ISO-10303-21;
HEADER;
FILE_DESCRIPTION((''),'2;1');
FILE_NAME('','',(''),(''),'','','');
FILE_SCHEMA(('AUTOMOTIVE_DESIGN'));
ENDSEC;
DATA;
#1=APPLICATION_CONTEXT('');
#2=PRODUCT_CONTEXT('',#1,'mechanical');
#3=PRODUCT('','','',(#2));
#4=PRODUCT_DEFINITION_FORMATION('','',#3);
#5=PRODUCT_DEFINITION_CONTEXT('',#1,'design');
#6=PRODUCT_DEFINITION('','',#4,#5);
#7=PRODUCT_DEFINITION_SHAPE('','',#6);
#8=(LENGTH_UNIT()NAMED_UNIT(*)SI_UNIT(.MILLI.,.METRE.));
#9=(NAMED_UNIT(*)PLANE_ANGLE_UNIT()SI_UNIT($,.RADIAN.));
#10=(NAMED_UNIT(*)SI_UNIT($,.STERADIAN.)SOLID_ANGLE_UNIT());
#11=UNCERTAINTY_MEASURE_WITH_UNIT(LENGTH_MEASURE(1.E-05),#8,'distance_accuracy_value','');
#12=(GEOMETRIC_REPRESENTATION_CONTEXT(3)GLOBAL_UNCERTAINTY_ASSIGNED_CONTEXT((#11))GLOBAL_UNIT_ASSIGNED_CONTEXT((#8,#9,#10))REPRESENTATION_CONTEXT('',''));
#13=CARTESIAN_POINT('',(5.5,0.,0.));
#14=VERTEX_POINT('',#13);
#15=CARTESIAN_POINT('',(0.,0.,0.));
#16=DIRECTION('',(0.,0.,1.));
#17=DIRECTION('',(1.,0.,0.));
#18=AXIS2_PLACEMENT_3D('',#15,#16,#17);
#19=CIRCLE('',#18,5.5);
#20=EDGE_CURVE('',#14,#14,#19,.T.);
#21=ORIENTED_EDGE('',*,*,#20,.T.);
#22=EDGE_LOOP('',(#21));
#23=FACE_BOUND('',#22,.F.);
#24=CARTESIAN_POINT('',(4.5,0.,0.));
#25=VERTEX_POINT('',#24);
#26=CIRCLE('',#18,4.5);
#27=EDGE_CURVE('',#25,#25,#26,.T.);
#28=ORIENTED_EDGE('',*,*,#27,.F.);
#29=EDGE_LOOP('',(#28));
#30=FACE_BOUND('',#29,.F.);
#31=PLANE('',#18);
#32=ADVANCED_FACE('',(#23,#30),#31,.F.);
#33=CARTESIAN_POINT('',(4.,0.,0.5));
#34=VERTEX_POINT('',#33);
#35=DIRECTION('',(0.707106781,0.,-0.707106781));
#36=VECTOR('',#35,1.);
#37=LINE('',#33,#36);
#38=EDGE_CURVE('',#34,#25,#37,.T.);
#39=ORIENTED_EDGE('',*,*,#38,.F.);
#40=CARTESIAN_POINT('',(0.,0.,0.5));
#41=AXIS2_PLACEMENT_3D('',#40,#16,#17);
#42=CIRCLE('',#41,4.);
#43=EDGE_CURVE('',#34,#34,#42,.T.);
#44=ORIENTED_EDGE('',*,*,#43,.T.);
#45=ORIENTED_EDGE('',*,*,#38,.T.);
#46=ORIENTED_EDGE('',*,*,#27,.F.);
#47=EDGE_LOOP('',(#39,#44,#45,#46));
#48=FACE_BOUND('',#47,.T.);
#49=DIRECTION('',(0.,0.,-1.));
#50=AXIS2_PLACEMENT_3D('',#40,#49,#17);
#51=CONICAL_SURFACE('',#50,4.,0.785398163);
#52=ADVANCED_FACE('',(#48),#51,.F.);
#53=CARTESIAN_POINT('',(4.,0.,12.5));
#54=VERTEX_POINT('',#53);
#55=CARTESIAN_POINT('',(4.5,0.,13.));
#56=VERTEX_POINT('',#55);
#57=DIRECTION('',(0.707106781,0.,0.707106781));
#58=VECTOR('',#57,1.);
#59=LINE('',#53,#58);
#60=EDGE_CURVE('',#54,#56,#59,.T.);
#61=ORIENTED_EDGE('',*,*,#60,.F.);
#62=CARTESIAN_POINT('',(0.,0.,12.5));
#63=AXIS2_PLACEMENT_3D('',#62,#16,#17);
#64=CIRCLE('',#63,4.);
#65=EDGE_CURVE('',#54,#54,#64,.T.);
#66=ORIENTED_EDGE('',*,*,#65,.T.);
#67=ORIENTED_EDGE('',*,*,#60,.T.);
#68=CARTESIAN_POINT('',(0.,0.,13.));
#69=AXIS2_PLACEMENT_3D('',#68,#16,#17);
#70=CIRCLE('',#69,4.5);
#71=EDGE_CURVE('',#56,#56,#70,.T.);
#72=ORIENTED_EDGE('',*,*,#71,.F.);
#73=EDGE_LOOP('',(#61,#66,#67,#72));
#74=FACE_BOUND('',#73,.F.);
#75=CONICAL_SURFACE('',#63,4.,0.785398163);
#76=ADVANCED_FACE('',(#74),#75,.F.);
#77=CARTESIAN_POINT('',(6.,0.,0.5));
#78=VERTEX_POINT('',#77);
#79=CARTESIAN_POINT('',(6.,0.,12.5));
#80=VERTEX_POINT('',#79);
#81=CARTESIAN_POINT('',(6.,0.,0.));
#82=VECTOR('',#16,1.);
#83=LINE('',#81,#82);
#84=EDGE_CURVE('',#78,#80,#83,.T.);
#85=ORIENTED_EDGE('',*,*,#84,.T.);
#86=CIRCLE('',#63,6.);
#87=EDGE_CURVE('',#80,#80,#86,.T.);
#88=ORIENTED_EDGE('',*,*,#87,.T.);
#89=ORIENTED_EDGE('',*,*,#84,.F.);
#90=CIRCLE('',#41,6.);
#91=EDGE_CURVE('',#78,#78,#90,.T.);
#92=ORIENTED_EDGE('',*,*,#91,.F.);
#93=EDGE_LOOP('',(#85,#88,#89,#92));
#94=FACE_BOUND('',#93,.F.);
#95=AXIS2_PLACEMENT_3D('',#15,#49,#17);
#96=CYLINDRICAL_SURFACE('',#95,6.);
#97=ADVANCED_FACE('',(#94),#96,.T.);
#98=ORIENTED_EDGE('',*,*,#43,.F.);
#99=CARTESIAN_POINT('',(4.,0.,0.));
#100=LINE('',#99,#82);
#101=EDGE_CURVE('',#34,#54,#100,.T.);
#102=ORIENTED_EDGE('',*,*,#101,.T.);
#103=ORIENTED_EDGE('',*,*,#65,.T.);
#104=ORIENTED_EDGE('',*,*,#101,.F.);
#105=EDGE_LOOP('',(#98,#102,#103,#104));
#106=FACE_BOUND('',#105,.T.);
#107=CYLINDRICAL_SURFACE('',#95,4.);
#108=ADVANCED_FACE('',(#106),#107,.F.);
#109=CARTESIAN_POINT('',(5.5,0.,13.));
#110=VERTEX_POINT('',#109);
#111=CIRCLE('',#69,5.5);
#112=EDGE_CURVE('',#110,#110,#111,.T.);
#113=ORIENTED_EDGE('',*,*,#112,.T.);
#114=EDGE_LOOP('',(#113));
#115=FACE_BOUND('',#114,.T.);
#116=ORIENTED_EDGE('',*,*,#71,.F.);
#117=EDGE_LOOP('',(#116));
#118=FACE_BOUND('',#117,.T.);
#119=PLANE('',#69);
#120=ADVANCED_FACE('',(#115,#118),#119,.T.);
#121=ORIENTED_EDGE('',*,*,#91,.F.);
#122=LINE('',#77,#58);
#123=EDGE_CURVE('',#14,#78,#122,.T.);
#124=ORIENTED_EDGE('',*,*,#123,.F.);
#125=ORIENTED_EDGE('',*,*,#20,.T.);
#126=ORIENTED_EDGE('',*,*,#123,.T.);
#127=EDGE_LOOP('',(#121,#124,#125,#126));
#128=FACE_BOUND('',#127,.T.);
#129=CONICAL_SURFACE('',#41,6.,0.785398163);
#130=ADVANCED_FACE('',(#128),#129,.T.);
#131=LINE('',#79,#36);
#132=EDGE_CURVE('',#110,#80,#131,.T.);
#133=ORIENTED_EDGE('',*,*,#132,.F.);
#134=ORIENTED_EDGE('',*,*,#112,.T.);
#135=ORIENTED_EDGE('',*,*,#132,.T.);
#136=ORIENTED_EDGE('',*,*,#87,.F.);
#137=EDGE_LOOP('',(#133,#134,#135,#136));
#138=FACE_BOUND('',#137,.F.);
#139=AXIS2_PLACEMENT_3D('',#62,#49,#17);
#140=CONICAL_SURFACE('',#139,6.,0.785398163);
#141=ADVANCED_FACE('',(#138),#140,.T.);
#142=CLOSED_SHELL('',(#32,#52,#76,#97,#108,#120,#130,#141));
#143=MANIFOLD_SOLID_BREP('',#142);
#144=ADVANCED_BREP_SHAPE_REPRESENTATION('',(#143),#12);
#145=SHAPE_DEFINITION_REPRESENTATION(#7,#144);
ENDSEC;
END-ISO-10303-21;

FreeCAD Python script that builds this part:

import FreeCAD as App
import Part
import Sketcher

V = App.Vector


def edges_at(feature, points):
    """Names of the edges that pass closest to the given points."""
    edges = feature.Shape.Edges
    near = lambda p: min(range(len(edges)), key=lambda i: edges[i].distToShape(Part.Vertex(*p))[0])
    return sorted({f"Edge{near(p) + 1}" for p in points})

doc = App.newDocument("Part")
body = doc.addObject("PartDesign::Body", "Body")

# Sketch on XY plane
sketch1 = body.newObject("Sketcher::SketchObject", "Sketch")
sketch1.AttachmentSupport = (doc.getObject("XY_Plane"), [""])
sketch1.MapMode = "FlatFace"
sketch1.addGeometry([
    Part.Circle(V(0, 0, 0), V(0, 0, 1), 6),
    Part.Circle(V(0, 0, 0), V(0, 0, 1), 4),
], False)
sketch1.addConstraint([
    Sketcher.Constraint("Coincident", 0, 3, -1, 1),
    Sketcher.Constraint("Coincident", 1, 3, -1, 1),
    Sketcher.Constraint("Diameter", 0, 12.0),
    Sketcher.Constraint("Diameter", 1, 8.0),
])
pad1 = body.newObject("PartDesign::Pad", "Pad")
pad1.Profile = sketch1
pad1.Length = 13
doc.recompute()

chamfer = body.newObject("PartDesign::Chamfer", "Chamfer")
chamfer.Base = (pad1, edges_at(pad1, [(-4, 0, 13)]))
chamfer.Size = 0.5
doc.recompute()

chamfer2 = body.newObject("PartDesign::Chamfer", "Chamfer001")
chamfer2.Base = (chamfer, edges_at(chamfer, [(-4, 0, 0)]))
chamfer2.Size = 0.5
doc.recompute()

chamfer3 = body.newObject("PartDesign::Chamfer", "Chamfer002")
chamfer3.Base = (chamfer2, edges_at(chamfer2, [(-6, 0, 0), (-6, 0, 13)]))
chamfer3.Size = 0.5

doc.recompute()
